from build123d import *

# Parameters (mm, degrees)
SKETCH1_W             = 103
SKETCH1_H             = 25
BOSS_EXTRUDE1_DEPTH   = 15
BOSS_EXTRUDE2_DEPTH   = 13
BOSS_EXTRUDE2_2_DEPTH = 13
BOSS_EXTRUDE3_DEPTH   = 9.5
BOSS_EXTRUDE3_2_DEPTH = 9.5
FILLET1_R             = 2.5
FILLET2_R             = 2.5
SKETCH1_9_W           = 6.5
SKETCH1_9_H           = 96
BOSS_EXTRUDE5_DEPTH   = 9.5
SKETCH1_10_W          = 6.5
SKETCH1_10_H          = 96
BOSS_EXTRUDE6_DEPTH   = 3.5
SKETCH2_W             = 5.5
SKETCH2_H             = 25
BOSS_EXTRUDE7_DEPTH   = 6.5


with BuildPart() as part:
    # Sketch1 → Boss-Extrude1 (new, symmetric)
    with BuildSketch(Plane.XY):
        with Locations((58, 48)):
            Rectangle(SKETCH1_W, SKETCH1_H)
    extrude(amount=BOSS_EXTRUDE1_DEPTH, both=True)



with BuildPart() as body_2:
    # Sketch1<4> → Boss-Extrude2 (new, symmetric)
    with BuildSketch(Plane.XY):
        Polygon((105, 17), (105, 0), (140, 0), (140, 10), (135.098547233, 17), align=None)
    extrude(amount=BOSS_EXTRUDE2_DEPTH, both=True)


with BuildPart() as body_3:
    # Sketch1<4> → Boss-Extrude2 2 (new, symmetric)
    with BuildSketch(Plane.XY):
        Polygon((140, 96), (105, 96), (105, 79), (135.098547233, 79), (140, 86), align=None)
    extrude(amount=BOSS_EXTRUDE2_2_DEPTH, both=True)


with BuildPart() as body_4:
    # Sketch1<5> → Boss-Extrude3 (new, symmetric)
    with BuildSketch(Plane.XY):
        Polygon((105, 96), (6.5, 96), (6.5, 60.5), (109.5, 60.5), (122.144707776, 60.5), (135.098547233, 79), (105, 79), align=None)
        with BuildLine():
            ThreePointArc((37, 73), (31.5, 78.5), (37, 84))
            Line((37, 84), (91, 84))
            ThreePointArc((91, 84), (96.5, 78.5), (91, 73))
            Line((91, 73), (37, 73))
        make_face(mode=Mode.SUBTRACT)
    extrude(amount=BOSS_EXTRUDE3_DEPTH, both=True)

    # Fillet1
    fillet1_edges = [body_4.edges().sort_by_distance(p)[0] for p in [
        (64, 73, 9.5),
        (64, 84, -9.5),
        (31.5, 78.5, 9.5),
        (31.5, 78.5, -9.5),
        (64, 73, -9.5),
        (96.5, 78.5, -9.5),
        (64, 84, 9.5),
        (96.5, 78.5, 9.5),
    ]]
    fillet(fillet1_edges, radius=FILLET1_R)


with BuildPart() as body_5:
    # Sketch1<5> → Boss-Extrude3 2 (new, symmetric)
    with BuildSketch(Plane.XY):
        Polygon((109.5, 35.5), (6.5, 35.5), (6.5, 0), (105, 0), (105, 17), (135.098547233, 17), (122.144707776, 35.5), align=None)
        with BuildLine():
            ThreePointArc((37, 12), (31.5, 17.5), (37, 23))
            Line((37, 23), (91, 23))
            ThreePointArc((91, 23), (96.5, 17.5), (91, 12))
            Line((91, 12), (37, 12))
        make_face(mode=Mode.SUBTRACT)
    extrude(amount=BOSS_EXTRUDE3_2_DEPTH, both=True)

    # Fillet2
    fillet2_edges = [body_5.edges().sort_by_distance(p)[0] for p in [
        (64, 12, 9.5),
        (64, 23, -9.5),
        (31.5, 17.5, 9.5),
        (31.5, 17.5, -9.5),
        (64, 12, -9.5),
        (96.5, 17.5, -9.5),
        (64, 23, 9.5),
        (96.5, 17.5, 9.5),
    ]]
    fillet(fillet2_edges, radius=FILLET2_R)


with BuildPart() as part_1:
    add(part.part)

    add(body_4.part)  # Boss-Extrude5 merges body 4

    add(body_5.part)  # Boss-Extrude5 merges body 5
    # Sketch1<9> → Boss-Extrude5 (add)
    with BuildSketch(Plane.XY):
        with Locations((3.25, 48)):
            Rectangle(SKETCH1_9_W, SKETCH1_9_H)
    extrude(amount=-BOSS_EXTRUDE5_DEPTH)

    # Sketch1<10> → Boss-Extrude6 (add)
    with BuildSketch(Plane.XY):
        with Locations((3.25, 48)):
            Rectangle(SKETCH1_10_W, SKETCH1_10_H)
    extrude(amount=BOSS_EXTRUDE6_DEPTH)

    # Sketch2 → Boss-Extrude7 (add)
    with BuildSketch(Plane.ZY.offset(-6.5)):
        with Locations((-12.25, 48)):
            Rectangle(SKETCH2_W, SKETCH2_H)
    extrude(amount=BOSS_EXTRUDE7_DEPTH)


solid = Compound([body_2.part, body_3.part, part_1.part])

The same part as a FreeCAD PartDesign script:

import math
import FreeCAD as App
import Part
import Sketcher
from FreeCAD import Vector
Q = App.Units.Quantity


def edges_at(feature, points):
    """Names of the edges that pass closest to the given points."""
    edges = feature.Shape.Edges
    near = lambda p: min(range(len(edges)), key=lambda i: edges[i].distToShape(Part.Vertex(*p))[0])
    return sorted({f"Edge{near(p) + 1}" for p in points})

doc = App.newDocument("Part")
body = doc.addObject("PartDesign::Body", "Body")

# Sketch on XY plane
sketch1 = body.newObject("Sketcher::SketchObject", "Sketch")
sketch1.AttachmentSupport = (doc.getObject("XY_Plane"), [""])
sketch1.MapMode = "FlatFace"
sketch1.addGeometry(Part.LineSegment(Vector(6, 60, 0), Vector(6, 36, 0)), False)
sketch1.addGeometry(Part.LineSegment(Vector(6, 36, 0), Vector(110, 36, 0)), False)
sketch1.addGeometry(Part.LineSegment(Vector(110, 36, 0), Vector(110, 60, 0)), False)
sketch1.addGeometry(Part.LineSegment(Vector(110, 60, 0), Vector(6, 60, 0)), False)
sketch1.addConstraint(Sketcher.Constraint("Coincident", 0, 2, 1, 1))
sketch1.addConstraint(Sketcher.Constraint("Coincident", 1, 2, 2, 1))
sketch1.addConstraint(Sketcher.Constraint("Coincident", 2, 2, 3, 1))
sketch1.addConstraint(Sketcher.Constraint("Coincident", 3, 2, 0, 1))
sketch1.addConstraint(Sketcher.Constraint("Vertical", 0))
sketch1.addConstraint(Sketcher.Constraint("Horizontal", 1))
sketch1.addConstraint(Sketcher.Constraint("Vertical", 2))
sketch1.addConstraint(Sketcher.Constraint("Horizontal", 3))
sketch1.addConstraint(Sketcher.Constraint("DistanceX", 1, 1, 1, 2, Q("103 mm")))
sketch1.addConstraint(Sketcher.Constraint("DistanceY", 0, 2, 0, 1, Q("25 mm")))
sketch1.addConstraint(Sketcher.Constraint("DistanceX", -1, 1, 0, 2, Q("6.5 mm")))
sketch1.addConstraint(Sketcher.Constraint("DistanceY", -1, 1, 0, 2, Q("35.5 mm")))
pad1 = body.newObject("PartDesign::Pad", "Pad")
pad1.Profile = sketch1
pad1.Length = 30
pad1.Midplane = True
body2 = doc.addObject("PartDesign::Body", "Body001")

# Sketch on XY plane
sketch2 = body2.newObject("Sketcher::SketchObject", "Sketch001")
sketch2.AttachmentSupport = (doc.getObject("XY_Plane001"), [""])
sketch2.MapMode = "FlatFace"
sketch2.addGeometry(Part.LineSegment(Vector(105, 17, 0), Vector(105, 0, 0)), False)
sketch2.addGeometry(Part.LineSegment(Vector(105, 0, 0), Vector(140, 0, 0)), False)
sketch2.addGeometry(Part.LineSegment(Vector(140, 0, 0), Vector(140, 10, 0)), False)
sketch2.addGeometry(Part.LineSegment(Vector(140, 10, 0), Vector(135, 17, 0)), False)
sketch2.addGeometry(Part.LineSegment(Vector(135, 17, 0), Vector(105, 17, 0)), False)
sketch2.addConstraint(Sketcher.Constraint("Coincident", 0, 2, 1, 1))
sketch2.addConstraint(Sketcher.Constraint("Coincident", 1, 2, 2, 1))
sketch2.addConstraint(Sketcher.Constraint("Coincident", 2, 2, 3, 1))
sketch2.addConstraint(Sketcher.Constraint("Coincident", 3, 2, 4, 1))
sketch2.addConstraint(Sketcher.Constraint("Coincident", 4, 2, 0, 1))
sketch2.addConstraint(Sketcher.Constraint("Vertical", 0))
sketch2.addConstraint(Sketcher.Constraint("Horizontal", 1))
sketch2.addConstraint(Sketcher.Constraint("Vertical", 2))
sketch2.addConstraint(Sketcher.Constraint("Horizontal", 4))
sketch2.addConstraint(Sketcher.Constraint("PointOnObject", 0, 2, -1))
sketch2.addConstraint(Sketcher.Constraint("DistanceX", 1, 1, 1, 2, Q("35 mm")))
sketch2.addConstraint(Sketcher.Constraint("DistanceY", 0, 2, 0, 1, Q("17 mm")))
sketch2.addConstraint(Sketcher.Constraint("DistanceY", 2, 1, 2, 2, Q("10 mm")))
sketch2.addConstraint(Sketcher.Constraint("Angle", 3, Q("125 deg")))
sketch2.addConstraint(Sketcher.Constraint("DistanceX", -1, 1, 0, 2, Q("105 mm")))
pad2 = body2.newObject("PartDesign::Pad", "Pad001")
pad2.Profile = sketch2
pad2.Length = 26
pad2.Midplane = True
body3 = doc.addObject("PartDesign::Body", "Body002")

# Sketch on XY plane
sketch3 = body3.newObject("Sketcher::SketchObject", "Sketch002")
sketch3.AttachmentSupport = (doc.getObject("XY_Plane002"), [""])
sketch3.MapMode = "FlatFace"
sketch3.addGeometry(Part.LineSegment(Vector(140, 96, 0), Vector(105, 96, 0)), False)
sketch3.addGeometry(Part.LineSegment(Vector(105, 96, 0), Vector(105, 79, 0)), False)
sketch3.addGeometry(Part.LineSegment(Vector(105, 79, 0), Vector(135, 79, 0)), False)
sketch3.addGeometry(Part.LineSegment(Vector(135, 79, 0), Vector(140, 86, 0)), False)
sketch3.addGeometry(Part.LineSegment(Vector(140, 86, 0), Vector(140, 96, 0)), False)
sketch3.addConstraint(Sketcher.Constraint("Coincident", 0, 2, 1, 1))
sketch3.addConstraint(Sketcher.Constraint("Coincident", 1, 2, 2, 1))
sketch3.addConstraint(Sketcher.Constraint("Coincident", 2, 2, 3, 1))
sketch3.addConstraint(Sketcher.Constraint("Coincident", 3, 2, 4, 1))
sketch3.addConstraint(Sketcher.Constraint("Coincident", 4, 2, 0, 1))
sketch3.addConstraint(Sketcher.Constraint("Horizontal", 0))
sketch3.addConstraint(Sketcher.Constraint("Vertical", 1))
sketch3.addConstraint(Sketcher.Constraint("Horizontal", 2))
sketch3.addConstraint(Sketcher.Constraint("Vertical", 4))
sketch3.addConstraint(Sketcher.Constraint("DistanceX", 0, 2, 0, 1, Q("35 mm")))
sketch3.addConstraint(Sketcher.Constraint("DistanceY", 1, 2, 1, 1, Q("17 mm")))
sketch3.addConstraint(Sketcher.Constraint("DistanceY", 4, 1, 4, 2, Q("10 mm")))
sketch3.addConstraint(Sketcher.Constraint("Angle", 3, Q("55 deg")))
sketch3.addConstraint(Sketcher.Constraint("DistanceX", -1, 1, 0, 2, Q("105 mm")))
sketch3.addConstraint(Sketcher.Constraint("DistanceY", -1, 1, 0, 2, Q("96 mm")))
pad3 = body3.newObject("PartDesign::Pad", "Pad002")
pad3.Profile = sketch3
pad3.Length = 26
pad3.Midplane = True
body4 = doc.addObject("PartDesign::Body", "Body003")

# Sketch on XY plane
sketch4 = body4.newObject("Sketcher::SketchObject", "Sketch003")
sketch4.AttachmentSupport = (doc.getObject("XY_Plane003"), [""])
sketch4.MapMode = "FlatFace"
sketch4.addGeometry(Part.LineSegment(Vector(105, 96, 0), Vector(6, 96, 0)), False)
sketch4.addGeometry(Part.LineSegment(Vector(6, 96, 0), Vector(6, 60, 0)), False)
sketch4.addGeometry(Part.LineSegment(Vector(6, 60, 0), Vector(122, 60, 0)), False)
sketch4.addGeometry(Part.LineSegment(Vector(122, 60, 0), Vector(135, 79, 0)), False)
sketch4.addGeometry(Part.LineSegment(Vector(135, 79, 0), Vector(105, 79, 0)), False)
sketch4.addGeometry(Part.LineSegment(Vector(105, 79, 0), Vector(105, 96, 0)), False)
sketch4.addGeometry(Part.LineSegment(Vector(91, 73, 0), Vector(37, 73, 0)), False)
sketch4.addGeometry(Part.ArcOfCircle(Part.Circle(Vector(37, 78, 0), Vector(0, 0, 1), 6), math.radians(90), math.radians(270)), False)
sketch4.addGeometry(Part.LineSegment(Vector(37, 84, 0), Vector(91, 84, 0)), False)
sketch4.addGeometry(Part.ArcOfCircle(Part.Circle(Vector(91, 78, 0), Vector(0, 0, 1), 6), math.radians(-90), math.radians(90)), False)
sketch4.addConstraint(Sketcher.Constraint("Coincident", 0, 2, 1, 1))
sketch4.addConstraint(Sketcher.Constraint("Coincident", 1, 2, 2, 1))
sketch4.addConstraint(Sketcher.Constraint("Coincident", 2, 2, 3, 1))
sketch4.addConstraint(Sketcher.Constraint("Coincident", 3, 2, 4, 1))
sketch4.addConstraint(Sketcher.Constraint("Coincident", 4, 2, 5, 1))
sketch4.addConstraint(Sketcher.Constraint("Coincident", 5, 2, 0, 1))
sketch4.addConstraint(Sketcher.Constraint("Tangent", 6, 2, 7, 2))
sketch4.addConstraint(Sketcher.Constraint("Tangent", 7, 1, 8, 1))
sketch4.addConstraint(Sketcher.Constraint("Tangent", 8, 2, 9, 2))
sketch4.addConstraint(Sketcher.Constraint("Tangent", 9, 1, 6, 1))
sketch4.addConstraint(Sketcher.Constraint("Horizontal", 0))
sketch4.addConstraint(Sketcher.Constraint("Vertical", 1))
sketch4.addConstraint(Sketcher.Constraint("Horizontal", 2))
sketch4.addConstraint(Sketcher.Constraint("Horizontal", 4))
sketch4.addConstraint(Sketcher.Constraint("Vertical", 5))
sketch4.addConstraint(Sketcher.Constraint("Horizontal", 6))
sketch4.addConstraint(Sketcher.Constraint("Horizontal", 8))
sketch4.addConstraint(Sketcher.Constraint("Radius", 7, Q("5.5 mm")))
sketch4.addConstraint(Sketcher.Constraint("DistanceX", 6, 2, 6, 1, Q("54 mm")))
sketch4.addConstraint(Sketcher.Constraint("DistanceY", 5, 1, 5, 2, Q("17 mm")))
sketch4.addConstraint(Sketcher.Constraint("Angle", 3, Q("55 deg")))
sketch4.addConstraint(Sketcher.Constraint("DistanceX", 0, 2, 0, 1, Q("98.5 mm")))
sketch4.addConstraint(Sketcher.Constraint("DistanceY", 1, 2, 1, 1, Q("35.5 mm")))
sketch4.addConstraint(Sketcher.Constraint("DistanceX", -1, 1, 7, 3, Q("37 mm")))
sketch4.addConstraint(Sketcher.Constraint("DistanceY", -1, 1, 0, 2, Q("96 mm")))
sketch4.addConstraint(Sketcher.Constraint("DistanceX", -1, 1, 4, 2, Q("105 mm")))
sketch4.addConstraint(Sketcher.Constraint("DistanceY", -1, 1, 6, 2, Q("73 mm")))
sketch4.addConstraint(Sketcher.Constraint("DistanceX", 2, 1, 2, 2, Q("115.644708 mm")))
pad4 = body4.newObject("PartDesign::Pad", "Pad003")
pad4.Profile = sketch4
pad4.Length = 19
pad4.Midplane = True
doc.recompute()

fillet = body4.newObject("PartDesign::Fillet", "Fillet")
fillet.Base = (pad4, edges_at(pad4, [
    (64, 73, 9.5),
    (64, 84, -9.5),
    (31.5, 78.5, 9.5),
    (31.5, 78.5, -9.5),
    (64, 73, -9.5),
    (96.5, 78.5, -9.5),
    (64, 84, 9.5),
    (96.5, 78.5, 9.5),
]))
fillet.Radius = 2.5
body5 = doc.addObject("PartDesign::Body", "Body004")

# Sketch on XY plane
sketch5 = body5.newObject("Sketcher::SketchObject", "Sketch004")
sketch5.AttachmentSupport = (doc.getObject("XY_Plane004"), [""])
sketch5.MapMode = "FlatFace"
sketch5.addGeometry(Part.LineSegment(Vector(6, 36, 0), Vector(6, 0, 0)), False)
sketch5.addGeometry(Part.LineSegment(Vector(6, 0, 0), Vector(105, 0, 0)), False)
sketch5.addGeometry(Part.LineSegment(Vector(105, 0, 0), Vector(105, 17, 0)), False)
sketch5.addGeometry(Part.LineSegment(Vector(105, 17, 0), Vector(135, 17, 0)), False)
sketch5.addGeometry(Part.LineSegment(Vector(135, 17, 0), Vector(122, 36, 0)), False)
sketch5.addGeometry(Part.LineSegment(Vector(122, 36, 0), Vector(6, 36, 0)), False)
sketch5.addGeometry(Part.LineSegment(Vector(91, 12, 0), Vector(37, 12, 0)), False)
sketch5.addGeometry(Part.ArcOfCircle(Part.Circle(Vector(37, 18, 0), Vector(0, 0, 1), 6), math.radians(90), math.radians(270)), False)
sketch5.addGeometry(Part.LineSegment(Vector(37, 23, 0), Vector(91, 23, 0)), False)
sketch5.addGeometry(Part.ArcOfCircle(Part.Circle(Vector(91, 18, 0), Vector(0, 0, 1), 6), math.radians(-90), math.radians(90)), False)
sketch5.addConstraint(Sketcher.Constraint("Coincident", 0, 2, 1, 1))
sketch5.addConstraint(Sketcher.Constraint("Coincident", 1, 2, 2, 1))
sketch5.addConstraint(Sketcher.Constraint("Coincident", 2, 2, 3, 1))
sketch5.addConstraint(Sketcher.Constraint("Coincident", 3, 2, 4, 1))
sketch5.addConstraint(Sketcher.Constraint("Coincident", 4, 2, 5, 1))
sketch5.addConstraint(Sketcher.Constraint("Coincident", 5, 2, 0, 1))
sketch5.addConstraint(Sketcher.Constraint("Tangent", 6, 2, 7, 2))
sketch5.addConstraint(Sketcher.Constraint("Tangent", 7, 1, 8, 1))
sketch5.addConstraint(Sketcher.Constraint("Tangent", 8, 2, 9, 2))
sketch5.addConstraint(Sketcher.Constraint("Tangent", 9, 1, 6, 1))
sketch5.addConstraint(Sketcher.Constraint("Vertical", 0))
sketch5.addConstraint(Sketcher.Constraint("Horizontal", 1))
sketch5.addConstraint(Sketcher.Constraint("Vertical", 2))
sketch5.addConstraint(Sketcher.Constraint("Horizontal", 3))
sketch5.addConstraint(Sketcher.Constraint("Horizontal", 5))
sketch5.addConstraint(Sketcher.Constraint("Horizontal", 6))
sketch5.addConstraint(Sketcher.Constraint("Horizontal", 8))
sketch5.addConstraint(Sketcher.Constraint("PointOnObject", 0, 2, -1))
sketch5.addConstraint(Sketcher.Constraint("Radius", 7, Q("5.5 mm")))
sketch5.addConstraint(Sketcher.Constraint("DistanceX", 6, 2, 6, 1, Q("54 mm")))
sketch5.addConstraint(Sketcher.Constraint("DistanceY", 2, 1, 2, 2, Q("17 mm")))
sketch5.addConstraint(Sketcher.Constraint("Angle", 4, Q("125 deg")))
sketch5.addConstraint(Sketcher.Constraint("DistanceX", 1, 1, 1, 2, Q("98.5 mm")))
sketch5.addConstraint(Sketcher.Constraint("DistanceY", 0, 2, 0, 1, Q("35.5 mm")))
sketch5.addConstraint(Sketcher.Constraint("DistanceX", -1, 1, 7, 3, Q("37 mm")))
sketch5.addConstraint(Sketcher.Constraint("DistanceX", -1, 1, 1, 2, Q("105 mm")))
sketch5.addConstraint(Sketcher.Constraint("DistanceY", -1, 1, 6, 2, Q("12 mm")))
sketch5.addConstraint(Sketcher.Constraint("DistanceX", 3, 1, 3, 2, Q("30.098547 mm")))
pad5 = body5.newObject("PartDesign::Pad", "Pad004")
pad5.Profile = sketch5
pad5.Length = 19
pad5.Midplane = True
doc.recompute()

fillet2 = body5.newObject("PartDesign::Fillet", "Fillet001")
fillet2.Base = (pad5, edges_at(pad5, [
    (64, 12, 9.5),
    (64, 23, -9.5),
    (31.5, 17.5, 9.5),
    (31.5, 17.5, -9.5),
    (64, 12, -9.5),
    (96.5, 17.5, -9.5),
    (64, 23, 9.5),
    (96.5, 17.5, 9.5),
]))
fillet2.Radius = 2.5
doc.recompute()

boolean = body.newObject("PartDesign::Boolean", "Boolean")
boolean.Type = "Fuse"
boolean.addObjects([body4])
doc.recompute()

boolean2 = body.newObject("PartDesign::Boolean", "Boolean001")
boolean2.Type = "Fuse"
boolean2.addObjects([body5])

# Sketch on XY plane
sketch6 = body.newObject("Sketcher::SketchObject", "Sketch005")
sketch6.AttachmentSupport = (doc.getObject("XY_Plane"), [""])
sketch6.MapMode = "FlatFace"
sketch6.addGeometry(Part.LineSegment(Vector(0, 96, 0), Vector(0, 0, 0)), False)
sketch6.addGeometry(Part.LineSegment(Vector(0, 0, 0), Vector(6, 0, 0)), False)
sketch6.addGeometry(Part.LineSegment(Vector(6, 0, 0), Vector(6, 96, 0)), False)
sketch6.addGeometry(Part.LineSegment(Vector(6, 96, 0), Vector(0, 96, 0)), False)
sketch6.addConstraint(Sketcher.Constraint("Coincident", 0, 2, 1, 1))
sketch6.addConstraint(Sketcher.Constraint("Coincident", 1, 2, 2, 1))
sketch6.addConstraint(Sketcher.Constraint("Coincident", 2, 2, 3, 1))
sketch6.addConstraint(Sketcher.Constraint("Coincident", 3, 2, 0, 1))
sketch6.addConstraint(Sketcher.Constraint("Vertical", 0))
sketch6.addConstraint(Sketcher.Constraint("Horizontal", 1))
sketch6.addConstraint(Sketcher.Constraint("Vertical", 2))
sketch6.addConstraint(Sketcher.Constraint("Horizontal", 3))
sketch6.addConstraint(Sketcher.Constraint("Coincident", 0, 2, -1, 1))
sketch6.addConstraint(Sketcher.Constraint("DistanceY", 0, 2, 0, 1, Q("96 mm")))
sketch6.addConstraint(Sketcher.Constraint("DistanceX", 1, 1, 1, 2, Q("6.5 mm")))
pad6 = body.newObject("PartDesign::Pad", "Pad005")
pad6.Profile = sketch6
pad6.Length = 9.5
pad6.Reversed = True

# Sketch on XY plane
sketch7 = body.newObject("Sketcher::SketchObject", "Sketch006")
sketch7.AttachmentSupport = (doc.getObject("XY_Plane"), [""])
sketch7.MapMode = "FlatFace"
sketch7.addGeometry(Part.LineSegment(Vector(0, 96, 0), Vector(0, 0, 0)), False)
sketch7.addGeometry(Part.LineSegment(Vector(0, 0, 0), Vector(6, 0, 0)), False)
sketch7.addGeometry(Part.LineSegment(Vector(6, 0, 0), Vector(6, 96, 0)), False)
sketch7.addGeometry(Part.LineSegment(Vector(6, 96, 0), Vector(0, 96, 0)), False)
sketch7.addConstraint(Sketcher.Constraint("Coincident", 0, 2, 1, 1))
sketch7.addConstraint(Sketcher.Constraint("Coincident", 1, 2, 2, 1))
sketch7.addConstraint(Sketcher.Constraint("Coincident", 2, 2, 3, 1))
sketch7.addConstraint(Sketcher.Constraint("Coincident", 3, 2, 0, 1))
sketch7.addConstraint(Sketcher.Constraint("Vertical", 0))
sketch7.addConstraint(Sketcher.Constraint("Horizontal", 1))
sketch7.addConstraint(Sketcher.Constraint("Vertical", 2))
sketch7.addConstraint(Sketcher.Constraint("Horizontal", 3))
sketch7.addConstraint(Sketcher.Constraint("Coincident", 0, 2, -1, 1))
sketch7.addConstraint(Sketcher.Constraint("DistanceY", 0, 2, 0, 1, Q("96 mm")))
sketch7.addConstraint(Sketcher.Constraint("DistanceX", 1, 1, 1, 2, Q("6.5 mm")))
pad7 = body.newObject("PartDesign::Pad", "Pad006")
pad7.Profile = sketch7
pad7.Length = 3.5

# Sketch on YZ plane
sketch8 = body.newObject("Sketcher::SketchObject", "Sketch007")
sketch8.AttachmentSupport = (doc.getObject("YZ_Plane"), [""])
sketch8.MapMode = "FlatFace"
sketch8.AttachmentOffset = App.Placement(Vector(0, 0, 6.5), App.Rotation())
sketch8.addGeometry(Part.LineSegment(Vector(60, -15, 0), Vector(36, -15, 0)), False)
sketch8.addGeometry(Part.LineSegment(Vector(36, -15, 0), Vector(36, -10, 0)), False)
sketch8.addGeometry(Part.LineSegment(Vector(36, -10, 0), Vector(60, -10, 0)), False)
sketch8.addGeometry(Part.LineSegment(Vector(60, -10, 0), Vector(60, -15, 0)), False)
sketch8.addConstraint(Sketcher.Constraint("Coincident", 0, 2, 1, 1))
sketch8.addConstraint(Sketcher.Constraint("Coincident", 1, 2, 2, 1))
sketch8.addConstraint(Sketcher.Constraint("Coincident", 2, 2, 3, 1))
sketch8.addConstraint(Sketcher.Constraint("Coincident", 3, 2, 0, 1))
sketch8.addConstraint(Sketcher.Constraint("Horizontal", 0))
sketch8.addConstraint(Sketcher.Constraint("Vertical", 1))
sketch8.addConstraint(Sketcher.Constraint("Horizontal", 2))
sketch8.addConstraint(Sketcher.Constraint("Vertical", 3))
sketch8.addConstraint(Sketcher.Constraint("DistanceX", 0, 2, 0, 1, Q("25 mm")))
sketch8.addConstraint(Sketcher.Constraint("DistanceY", 1, 1, 1, 2, Q("5.5 mm")))
sketch8.addConstraint(Sketcher.Constraint("DistanceY", 0, 2, -1, 1, Q("15 mm")))
sketch8.addConstraint(Sketcher.Constraint("DistanceX", -1, 1, 0, 2, Q("35.5 mm")))
pad8 = body.newObject("PartDesign::Pad", "Pad007")
pad8.Profile = sketch8
pad8.Length = 6.5
pad8.Reversed = True

doc.recompute()
